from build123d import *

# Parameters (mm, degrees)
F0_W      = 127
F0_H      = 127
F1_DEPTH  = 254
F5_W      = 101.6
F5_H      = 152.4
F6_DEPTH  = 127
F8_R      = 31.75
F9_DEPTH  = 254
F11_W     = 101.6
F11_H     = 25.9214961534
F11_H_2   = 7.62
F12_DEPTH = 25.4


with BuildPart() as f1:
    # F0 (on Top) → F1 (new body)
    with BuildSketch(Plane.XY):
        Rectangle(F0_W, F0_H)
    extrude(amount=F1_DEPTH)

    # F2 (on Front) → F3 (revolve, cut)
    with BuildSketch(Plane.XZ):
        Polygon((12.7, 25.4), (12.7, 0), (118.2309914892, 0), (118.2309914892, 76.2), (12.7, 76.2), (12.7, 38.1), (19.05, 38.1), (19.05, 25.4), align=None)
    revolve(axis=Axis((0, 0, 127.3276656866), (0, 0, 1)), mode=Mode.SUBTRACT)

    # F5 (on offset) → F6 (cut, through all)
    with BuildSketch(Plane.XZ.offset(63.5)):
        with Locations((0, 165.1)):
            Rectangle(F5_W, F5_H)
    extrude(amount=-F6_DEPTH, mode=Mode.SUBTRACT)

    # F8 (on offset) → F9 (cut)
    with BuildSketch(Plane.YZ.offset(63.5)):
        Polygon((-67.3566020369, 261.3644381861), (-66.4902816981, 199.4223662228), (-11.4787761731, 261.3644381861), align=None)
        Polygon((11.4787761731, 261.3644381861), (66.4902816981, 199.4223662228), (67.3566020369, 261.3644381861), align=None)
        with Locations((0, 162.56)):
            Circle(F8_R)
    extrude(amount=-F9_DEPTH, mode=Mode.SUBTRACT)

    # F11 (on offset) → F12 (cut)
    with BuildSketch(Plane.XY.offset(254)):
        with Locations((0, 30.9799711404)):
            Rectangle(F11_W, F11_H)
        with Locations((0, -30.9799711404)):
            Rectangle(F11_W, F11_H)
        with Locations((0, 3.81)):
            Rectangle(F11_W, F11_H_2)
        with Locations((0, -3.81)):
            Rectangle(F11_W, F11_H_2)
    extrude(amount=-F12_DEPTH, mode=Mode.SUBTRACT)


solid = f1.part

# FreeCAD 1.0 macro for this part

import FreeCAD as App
import Part
import Sketcher
Q = App.Units.Quantity

doc = App.newDocument("Part")
body = doc.addObject("PartDesign::Body", "Body")

sketch1 = body.newObject("Sketcher::SketchObject", "Sketch")
sketch1.AttachmentSupport = (doc.getObject("XY_Plane"), [""])
sketch1.MapMode = "FlatFace"
sketch1.addGeometry(Part.LineSegment(App.Vector(-64, 64, 0), App.Vector(-64, -64, 0)), False)
sketch1.addGeometry(Part.LineSegment(App.Vector(-64, -64, 0), App.Vector(64, -64, 0)), False)
sketch1.addGeometry(Part.LineSegment(App.Vector(64, -64, 0), App.Vector(64, 64, 0)), False)
sketch1.addGeometry(Part.LineSegment(App.Vector(64, 64, 0), App.Vector(-64, 64, 0)), False)
sketch1.addConstraint(Sketcher.Constraint("Coincident", 0, 2, 1, 1))
sketch1.addConstraint(Sketcher.Constraint("Coincident", 1, 2, 2, 1))
sketch1.addConstraint(Sketcher.Constraint("Coincident", 2, 2, 3, 1))
sketch1.addConstraint(Sketcher.Constraint("Coincident", 3, 2, 0, 1))
sketch1.addConstraint(Sketcher.Constraint("Vertical", 0))
sketch1.addConstraint(Sketcher.Constraint("Horizontal", 1))
sketch1.addConstraint(Sketcher.Constraint("Vertical", 2))
sketch1.addConstraint(Sketcher.Constraint("Horizontal", 3))
sketch1.addConstraint(Sketcher.Constraint("Symmetric", 0, 2, 2, 2, -1, 1))
sketch1.addConstraint(Sketcher.Constraint("Equal", 3, 0))
sketch1.addConstraint(Sketcher.Constraint("DistanceX", 1, 1, 1, 2, Q("5 in")))
pad1 = body.newObject("PartDesign::Pad", "Pad")
pad1.Profile = sketch1
pad1.Length = Q("10 in")

sketch2 = body.newObject("Sketcher::SketchObject", "Sketch001")
sketch2.AttachmentSupport = (doc.getObject("XZ_Plane"), [""])
sketch2.MapMode = "FlatFace"
sketch2.addGeometry(Part.LineSegment(App.Vector(13, 25, 0), App.Vector(13, 0, 0)), False)
sketch2.addGeometry(Part.LineSegment(App.Vector(13, 0, 0), App.Vector(118, 0, 0)), False)
sketch2.addGeometry(Part.LineSegment(App.Vector(118, 0, 0), App.Vector(118, 76, 0)), False)
sketch2.addGeometry(Part.LineSegment(App.Vector(118, 76, 0), App.Vector(13, 76, 0)), False)
sketch2.addGeometry(Part.LineSegment(App.Vector(13, 76, 0), App.Vector(13, 38, 0)), False)
sketch2.addGeometry(Part.LineSegment(App.Vector(13, 38, 0), App.Vector(19, 38, 0)), False)
sketch2.addGeometry(Part.LineSegment(App.Vector(19, 38, 0), App.Vector(19, 25, 0)), False)
sketch2.addGeometry(Part.LineSegment(App.Vector(19, 25, 0), App.Vector(13, 25, 0)), False)
sketch2.addConstraint(Sketcher.Constraint("Coincident", 0, 2, 1, 1))
sketch2.addConstraint(Sketcher.Constraint("Coincident", 1, 2, 2, 1))
sketch2.addConstraint(Sketcher.Constraint("Coincident", 2, 2, 3, 1))
sketch2.addConstraint(Sketcher.Constraint("Coincident", 3, 2, 4, 1))
sketch2.addConstraint(Sketcher.Constraint("Coincident", 4, 2, 5, 1))
sketch2.addConstraint(Sketcher.Constraint("Coincident", 5, 2, 6, 1))
sketch2.addConstraint(Sketcher.Constraint("Coincident", 6, 2, 7, 1))
sketch2.addConstraint(Sketcher.Constraint("Coincident", 7, 2, 0, 1))
sketch2.addConstraint(Sketcher.Constraint("Vertical", 0))
sketch2.addConstraint(Sketcher.Constraint("Horizontal", 1))
sketch2.addConstraint(Sketcher.Constraint("Vertical", 2))
sketch2.addConstraint(Sketcher.Constraint("Horizontal", 3))
sketch2.addConstraint(Sketcher.Constraint("Vertical", 4))
sketch2.addConstraint(Sketcher.Constraint("Horizontal", 5))
sketch2.addConstraint(Sketcher.Constraint("Vertical", 6))
sketch2.addConstraint(Sketcher.Constraint("Horizontal", 7))
sketch2.addConstraint(Sketcher.Constraint("PointOnObject", 0, 2, -1))
sketch2.addConstraint(Sketcher.Constraint("Vertical", 0, 2, 3, 2))
sketch2.addConstraint(Sketcher.Constraint("DistanceY", 0, 2, 0, 1, Q("1 in")))
sketch2.addConstraint(Sketcher.Constraint("DistanceY", 2, 1, 2, 2, Q("3 in")))
sketch2.addConstraint(Sketcher.Constraint("DistanceY", 4, 2, 4, 1, Q("1.5 in")))
sketch2.addConstraint(Sketcher.Constraint("DistanceX", 5, 1, 5, 2, Q("0.25 in")))
sketch2.addConstraint(Sketcher.Constraint("DistanceX", -1, 1, 0, 2, Q("0.5 in")))
sketch2.addConstraint(Sketcher.Constraint("DistanceX", 1, 1, 1, 2, 105.530991))
groove = body.newObject("PartDesign::Groove", "Groove")
groove.Profile = sketch2
groove.ReferenceAxis = (sketch2, ["V_Axis"])
groove.Angle = 360

sketch3 = body.newObject("Sketcher::SketchObject", "Sketch002")
sketch3.AttachmentSupport = (doc.getObject("XZ_Plane"), [""])
sketch3.MapMode = "FlatFace"
sketch3.AttachmentOffset = App.Placement(App.Vector(0, 0, 2.5 * 25.4), App.Rotation())
sketch3.addGeometry(Part.LineSegment(App.Vector(-51, 241, 0), App.Vector(-51, 89, 0)), False)
sketch3.addGeometry(Part.LineSegment(App.Vector(-51, 89, 0), App.Vector(51, 89, 0)), False)
sketch3.addGeometry(Part.LineSegment(App.Vector(51, 89, 0), App.Vector(51, 241, 0)), False)
sketch3.addGeometry(Part.LineSegment(App.Vector(51, 241, 0), App.Vector(-51, 241, 0)), False)
sketch3.addConstraint(Sketcher.Constraint("Coincident", 0, 2, 1, 1))
sketch3.addConstraint(Sketcher.Constraint("Coincident", 1, 2, 2, 1))
sketch3.addConstraint(Sketcher.Constraint("Coincident", 2, 2, 3, 1))
sketch3.addConstraint(Sketcher.Constraint("Coincident", 3, 2, 0, 1))
sketch3.addConstraint(Sketcher.Constraint("Vertical", 0))
sketch3.addConstraint(Sketcher.Constraint("Horizontal", 1))
sketch3.addConstraint(Sketcher.Constraint("Vertical", 2))
sketch3.addConstraint(Sketcher.Constraint("Horizontal", 3))
sketch3.addConstraint(Sketcher.Constraint("DistanceX", 1, 1, 1, 2, Q("4 in")))
sketch3.addConstraint(Sketcher.Constraint("DistanceY", 0, 2, 0, 1, Q("6 in")))
sketch3.addConstraint(Sketcher.Constraint("DistanceX", 0, 2, -1, 1, Q("2 in")))
sketch3.addConstraint(Sketcher.Constraint("DistanceY", -1, 1, 0, 2, Q("3.5 in")))
pocket1 = body.newObject("PartDesign::Pocket", "Pocket")
pocket1.Profile = sketch3
pocket1.Type = "ThroughAll"

sketch4 = body.newObject("Sketcher::SketchObject", "Sketch003")
sketch4.AttachmentSupport = (doc.getObject("YZ_Plane"), [""])
sketch4.MapMode = "FlatFace"
sketch4.AttachmentOffset = App.Placement(App.Vector(0, 0, 2.5 * 25.4), App.Rotation())
sketch4.addGeometry(Part.LineSegment(App.Vector(-67, 261, 0), App.Vector(-66, 199, 0)), False)
sketch4.addGeometry(Part.LineSegment(App.Vector(-66, 199, 0), App.Vector(-11, 261, 0)), False)
sketch4.addGeometry(Part.LineSegment(App.Vector(-11, 261, 0), App.Vector(-67, 261, 0)), False)
sketch4.addGeometry(Part.LineSegment(App.Vector(11, 261, 0), App.Vector(66, 199, 0)), False)
sketch4.addGeometry(Part.LineSegment(App.Vector(66, 199, 0), App.Vector(67, 261, 0)), False)
sketch4.addGeometry(Part.LineSegment(App.Vector(67, 261, 0), App.Vector(11, 261, 0)), False)
sketch4.addGeometry(Part.Circle(App.Vector(0, 163, 0), App.Vector(0, 0, 1), 32), False)
sketch4.addConstraint(Sketcher.Constraint("Coincident", 0, 2, 1, 1))
sketch4.addConstraint(Sketcher.Constraint("Coincident", 1, 2, 2, 1))
sketch4.addConstraint(Sketcher.Constraint("Coincident", 2, 2, 0, 1))
sketch4.addConstraint(Sketcher.Constraint("Coincident", 3, 2, 4, 1))
sketch4.addConstraint(Sketcher.Constraint("Coincident", 4, 2, 5, 1))
sketch4.addConstraint(Sketcher.Constraint("Coincident", 5, 2, 3, 1))
sketch4.addConstraint(Sketcher.Constraint("Horizontal", 2))
sketch4.addConstraint(Sketcher.Constraint("Horizontal", 5))
sketch4.addConstraint(Sketcher.Constraint("Symmetric", 0, 2, 3, 2, -2))
sketch4.addConstraint(Sketcher.Constraint("Symmetric", 2, 2, 4, 2, -2))
sketch4.addConstraint(Sketcher.Constraint("PointOnObject", 6, 3, -2))
sketch4.addConstraint(Sketcher.Constraint("Equal", 2, 5))
sketch4.addConstraint(Sketcher.Constraint("Diameter", 6, Q("2.5 in")))
sketch4.addConstraint(Sketcher.Constraint("DistanceY", -1, 1, 6, 3, Q("6.4 in")))
sketch4.addConstraint(Sketcher.Constraint("Distance", 0, 61.94813))
sketch4.addConstraint(Sketcher.Constraint("DistanceX", 2, 2, 2, 1, 55.877826))
sketch4.addConstraint(Sketcher.Constraint("DistanceX", 0, 2, -1, 1, 66.490282))
sketch4.addConstraint(Sketcher.Constraint("DistanceY", -1, 1, 1, 2, 261.364438))
sketch4.addConstraint(Sketcher.Constraint("DistanceY", 0, 2, 1, 2, 61.942072))
pocket2 = body.newObject("PartDesign::Pocket", "Pocket001")
pocket2.Profile = sketch4
pocket2.Length = Q("10 in")

sketch5 = body.newObject("Sketcher::SketchObject", "Sketch004")
sketch5.AttachmentSupport = (doc.getObject("XY_Plane"), [""])
sketch5.MapMode = "FlatFace"
sketch5.AttachmentOffset = App.Placement(App.Vector(0, 0, 10 * 25.4), App.Rotation())
sketch5.addGeometry(Part.LineSegment(App.Vector(-51, 44, 0), App.Vector(-51, 18, 0)), False)
sketch5.addGeometry(Part.LineSegment(App.Vector(-51, 18, 0), App.Vector(51, 18, 0)), False)
sketch5.addGeometry(Part.LineSegment(App.Vector(51, 18, 0), App.Vector(51, 44, 0)), False)
sketch5.addGeometry(Part.LineSegment(App.Vector(51, 44, 0), App.Vector(-51, 44, 0)), False)
sketch5.addGeometry(Part.LineSegment(App.Vector(-51, -18, 0), App.Vector(-51, -44, 0)), False)
sketch5.addGeometry(Part.LineSegment(App.Vector(-51, -44, 0), App.Vector(51, -44, 0)), False)
sketch5.addGeometry(Part.LineSegment(App.Vector(51, -44, 0), App.Vector(51, -18, 0)), False)
sketch5.addGeometry(Part.LineSegment(App.Vector(51, -18, 0), App.Vector(-51, -18, 0)), False)
sketch5.addGeometry(Part.LineSegment(App.Vector(-51, 8, 0), App.Vector(-51, -8, 0)), False)
sketch5.addGeometry(Part.LineSegment(App.Vector(-51, -8, 0), App.Vector(51, -8, 0)), False)
sketch5.addGeometry(Part.LineSegment(App.Vector(51, -8, 0), App.Vector(51, 8, 0)), False)
sketch5.addGeometry(Part.LineSegment(App.Vector(51, 8, 0), App.Vector(-51, 8, 0)), False)
sketch5.addConstraint(Sketcher.Constraint("Coincident", 0, 2, 1, 1))
sketch5.addConstraint(Sketcher.Constraint("Coincident", 1, 2, 2, 1))
sketch5.addConstraint(Sketcher.Constraint("Coincident", 2, 2, 3, 1))
sketch5.addConstraint(Sketcher.Constraint("Coincident", 3, 2, 0, 1))
sketch5.addConstraint(Sketcher.Constraint("Coincident", 4, 2, 5, 1))
sketch5.addConstraint(Sketcher.Constraint("Coincident", 5, 2, 6, 1))
sketch5.addConstraint(Sketcher.Constraint("Coincident", 6, 2, 7, 1))
sketch5.addConstraint(Sketcher.Constraint("Coincident", 7, 2, 4, 1))
sketch5.addConstraint(Sketcher.Constraint("Coincident", 8, 2, 9, 1))
sketch5.addConstraint(Sketcher.Constraint("Coincident", 9, 2, 10, 1))
sketch5.addConstraint(Sketcher.Constraint("Coincident", 10, 2, 11, 1))
sketch5.addConstraint(Sketcher.Constraint("Coincident", 11, 2, 8, 1))
sketch5.addConstraint(Sketcher.Constraint("Vertical", 0))
sketch5.addConstraint(Sketcher.Constraint("Horizontal", 1))
sketch5.addConstraint(Sketcher.Constraint("Vertical", 2))
sketch5.addConstraint(Sketcher.Constraint("Horizontal", 3))
sketch5.addConstraint(Sketcher.Constraint("Vertical", 4))
sketch5.addConstraint(Sketcher.Constraint("Horizontal", 5))
sketch5.addConstraint(Sketcher.Constraint("Vertical", 6))
sketch5.addConstraint(Sketcher.Constraint("Horizontal", 7))
sketch5.addConstraint(Sketcher.Constraint("Vertical", 8))
sketch5.addConstraint(Sketcher.Constraint("Horizontal", 9))
sketch5.addConstraint(Sketcher.Constraint("Vertical", 10))
sketch5.addConstraint(Sketcher.Constraint("Horizontal", 11))
sketch5.addConstraint(Sketcher.Constraint("Symmetric", 2, 2, 4, 2, -1, 1))
sketch5.addConstraint(Sketcher.Constraint("Symmetric", 0, 2, 6, 2, -1, 1))
sketch5.addConstraint(Sketcher.Constraint("Symmetric", 8, 2, 10, 2, -1, 1))
sketch5.addConstraint(Sketcher.Constraint("Vertical", 3, 2, 4, 2))
sketch5.addConstraint(Sketcher.Constraint("Vertical", 7, 2, 8, 2))
sketch5.addConstraint(Sketcher.Constraint("DistanceX", 1, 1, 1, 2, Q("4 in")))
sketch5.addConstraint(Sketcher.Constraint("DistanceY", 8, 2, 8, 1, Q("0.6 in")))
sketch5.addConstraint(Sketcher.Constraint("DistanceY", 0, 2, 0, 1, 25.921496))
sketch5.addConstraint(Sketcher.Constraint("DistanceY", -1, 1, 2, 2, 43.940719))
pocket3 = body.newObject("PartDesign::Pocket", "Pocket002")
pocket3.Profile = sketch5
pocket3.Length = Q("1 in")

doc.recompute()
